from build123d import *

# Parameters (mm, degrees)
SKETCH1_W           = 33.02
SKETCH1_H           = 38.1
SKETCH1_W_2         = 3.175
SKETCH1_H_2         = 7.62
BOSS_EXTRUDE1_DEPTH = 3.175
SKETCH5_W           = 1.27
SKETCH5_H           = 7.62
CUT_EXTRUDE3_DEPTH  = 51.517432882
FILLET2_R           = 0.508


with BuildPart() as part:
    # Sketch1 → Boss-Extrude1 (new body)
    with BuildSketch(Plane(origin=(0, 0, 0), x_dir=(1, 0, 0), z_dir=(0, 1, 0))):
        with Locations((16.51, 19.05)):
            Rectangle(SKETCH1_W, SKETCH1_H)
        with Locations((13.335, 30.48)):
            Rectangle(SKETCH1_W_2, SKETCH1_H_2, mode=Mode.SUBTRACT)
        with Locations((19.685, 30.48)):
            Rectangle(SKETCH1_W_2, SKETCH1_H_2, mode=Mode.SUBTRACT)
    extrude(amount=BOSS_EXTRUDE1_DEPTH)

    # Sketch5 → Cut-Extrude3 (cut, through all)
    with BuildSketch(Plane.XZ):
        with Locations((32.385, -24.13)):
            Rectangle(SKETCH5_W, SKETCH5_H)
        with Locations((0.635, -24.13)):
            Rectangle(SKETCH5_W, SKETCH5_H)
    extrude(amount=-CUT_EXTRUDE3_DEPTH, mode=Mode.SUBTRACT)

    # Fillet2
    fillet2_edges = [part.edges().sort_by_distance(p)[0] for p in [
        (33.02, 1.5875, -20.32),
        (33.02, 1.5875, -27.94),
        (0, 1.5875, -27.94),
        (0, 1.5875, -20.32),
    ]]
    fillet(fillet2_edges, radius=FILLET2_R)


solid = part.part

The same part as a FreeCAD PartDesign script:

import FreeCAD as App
import Part
import Sketcher
Q = App.Units.Quantity


def edges_at(feature, points):
    """Names of the edges that pass closest to the given points."""
    edges = feature.Shape.Edges
    near = lambda p: min(range(len(edges)), key=lambda i: edges[i].distToShape(Part.Vertex(*p))[0])
    return sorted({f"Edge{near(p) + 1}" for p in points})


def add_polygon(sketch, points):
    """Adds a closed chain of lines whose ends are joined by coincident constraints."""
    first, n = sketch.GeometryCount, len(points)
    for a, b in zip(points, points[1:] + points[:1]):
        sketch.addGeometry(Part.LineSegment(App.Vector(*a, 0), App.Vector(*b, 0)), False)
    for i in range(n):
        sketch.addConstraint(Sketcher.Constraint("Coincident", first + i, 2, first + (i + 1) % n, 1))

doc = App.newDocument("Part")
body = doc.addObject("PartDesign::Body", "Body")

sketch1 = doc.addObject("Sketcher::SketchObject", "Sketch")
body.addObject(sketch1)
sketch1.AttachmentSupport = (doc.XZ_Plane, [""])
sketch1.MapMode = "FlatFace"
add_polygon(sketch1, [(0, -38.1), (0, 0), (33, 0), (33, -38.1)])
add_polygon(sketch1, [(14.9, -26.7), (11.7, -26.7), (11.7, -34.3), (14.9, -34.3)])
add_polygon(sketch1, [(21.3, -26.7), (18.1, -26.7), (18.1, -34.3), (21.3, -34.3)])
sketch1.addConstraint(Sketcher.Constraint("Vertical", 0))
sketch1.addConstraint(Sketcher.Constraint("Horizontal", 1))
sketch1.addConstraint(Sketcher.Constraint("Vertical", 2))
sketch1.addConstraint(Sketcher.Constraint("Horizontal", 3))
sketch1.addConstraint(Sketcher.Constraint("Horizontal", 4))
sketch1.addConstraint(Sketcher.Constraint("Vertical", 5))
sketch1.addConstraint(Sketcher.Constraint("Horizontal", 6))
sketch1.addConstraint(Sketcher.Constraint("Vertical", 7))
sketch1.addConstraint(Sketcher.Constraint("Horizontal", 8))
sketch1.addConstraint(Sketcher.Constraint("Vertical", 9))
sketch1.addConstraint(Sketcher.Constraint("Horizontal", 10))
sketch1.addConstraint(Sketcher.Constraint("Vertical", 11))
sketch1.addConstraint(Sketcher.Constraint("Coincident", 0, 2, -1, 1))
sketch1.addConstraint(Sketcher.Constraint("Horizontal", 7, 2, 8, 2))
sketch1.addConstraint(Sketcher.Constraint("Horizontal", 6, 2, 9, 2))
sketch1.addConstraint(Sketcher.Constraint("Equal", 6, 8))
sketch1.addConstraint(Sketcher.Constraint("DistanceX", 1, 1, 1, 2, Q("1.3 in")))
sketch1.addConstraint(Sketcher.Constraint("DistanceY", 0, 1, 0, 2, Q("1.5 in")))
sketch1.addConstraint(Sketcher.Constraint("DistanceY", 5, 2, 5, 1, Q("0.3 in")))
sketch1.addConstraint(Sketcher.Constraint("DistanceX", 4, 2, 4, 1, Q("0.125 in")))
sketch1.addConstraint(Sketcher.Constraint("DistanceY", 4, 2, -1, 1, Q("1.05 in")))
sketch1.addConstraint(Sketcher.Constraint("DistanceX", 4, 2, 8, 2, Q("0.25 in")))
sketch1.addConstraint(Sketcher.Constraint("DistanceX", -1, 1, 4, 2, Q("0.4625 in")))
pad1 = doc.addObject("PartDesign::Pad", "Pad")
body.addObject(pad1)
pad1.Profile = sketch1
pad1.Length = Q("0.125 in")
pad1.Reversed = True

sketch2 = doc.addObject("Sketcher::SketchObject", "Sketch001")
body.addObject(sketch2)
sketch2.AttachmentSupport = (doc.XZ_Plane, [""])
sketch2.MapMode = "FlatFace"
add_polygon(sketch2, [(31.8, -20.3), (31.8, -27.9), (33, -27.9), (33, -20.3)])
add_polygon(sketch2, [(0, -20.3), (0, -27.9), (1.3, -27.9), (1.3, -20.3)])
sketch2.addConstraint(Sketcher.Constraint("Vertical", 0))
sketch2.addConstraint(Sketcher.Constraint("Horizontal", 1))
sketch2.addConstraint(Sketcher.Constraint("Vertical", 2))
sketch2.addConstraint(Sketcher.Constraint("Horizontal", 3))
sketch2.addConstraint(Sketcher.Constraint("Vertical", 4))
sketch2.addConstraint(Sketcher.Constraint("Horizontal", 5))
sketch2.addConstraint(Sketcher.Constraint("Vertical", 6))
sketch2.addConstraint(Sketcher.Constraint("Horizontal", 7))
sketch2.addConstraint(Sketcher.Constraint("PointOnObject", 4, 2, -2))
sketch2.addConstraint(Sketcher.Constraint("Horizontal", 1, 2, 4, 2))
sketch2.addConstraint(Sketcher.Constraint("Horizontal", 3, 2, 6, 2))
sketch2.addConstraint(Sketcher.Constraint("Equal", 3, 5))
sketch2.addConstraint(Sketcher.Constraint("DistanceY", 0, 2, 0, 1, Q("0.3 in")))
sketch2.addConstraint(Sketcher.Constraint("DistanceX", 1, 1, 1, 2, Q("0.05 in")))
sketch2.addConstraint(Sketcher.Constraint("DistanceY", 0, 2, -1, 1, Q("1.1 in")))
sketch2.addConstraint(Sketcher.Constraint("DistanceX", -1, 1, 1, 2, Q("1.3 in")))
pocket1 = doc.addObject("PartDesign::Pocket", "Pocket")
body.addObject(pocket1)
pocket1.Profile = sketch2
pocket1.Type = "ThroughAll"
doc.recompute()

fillet = doc.addObject("PartDesign::Fillet", "Fillet")
body.addObject(fillet)
fillet.Base = (pocket1, edges_at(pocket1, [
    (33.02, 1.587, -20.32),
    (33.02, 1.587, -27.94),
    (0, 1.587, -27.94),
    (0, 1.587, -20.32),
]))
fillet.Radius = Q("0.02 in")

doc.recompute()
